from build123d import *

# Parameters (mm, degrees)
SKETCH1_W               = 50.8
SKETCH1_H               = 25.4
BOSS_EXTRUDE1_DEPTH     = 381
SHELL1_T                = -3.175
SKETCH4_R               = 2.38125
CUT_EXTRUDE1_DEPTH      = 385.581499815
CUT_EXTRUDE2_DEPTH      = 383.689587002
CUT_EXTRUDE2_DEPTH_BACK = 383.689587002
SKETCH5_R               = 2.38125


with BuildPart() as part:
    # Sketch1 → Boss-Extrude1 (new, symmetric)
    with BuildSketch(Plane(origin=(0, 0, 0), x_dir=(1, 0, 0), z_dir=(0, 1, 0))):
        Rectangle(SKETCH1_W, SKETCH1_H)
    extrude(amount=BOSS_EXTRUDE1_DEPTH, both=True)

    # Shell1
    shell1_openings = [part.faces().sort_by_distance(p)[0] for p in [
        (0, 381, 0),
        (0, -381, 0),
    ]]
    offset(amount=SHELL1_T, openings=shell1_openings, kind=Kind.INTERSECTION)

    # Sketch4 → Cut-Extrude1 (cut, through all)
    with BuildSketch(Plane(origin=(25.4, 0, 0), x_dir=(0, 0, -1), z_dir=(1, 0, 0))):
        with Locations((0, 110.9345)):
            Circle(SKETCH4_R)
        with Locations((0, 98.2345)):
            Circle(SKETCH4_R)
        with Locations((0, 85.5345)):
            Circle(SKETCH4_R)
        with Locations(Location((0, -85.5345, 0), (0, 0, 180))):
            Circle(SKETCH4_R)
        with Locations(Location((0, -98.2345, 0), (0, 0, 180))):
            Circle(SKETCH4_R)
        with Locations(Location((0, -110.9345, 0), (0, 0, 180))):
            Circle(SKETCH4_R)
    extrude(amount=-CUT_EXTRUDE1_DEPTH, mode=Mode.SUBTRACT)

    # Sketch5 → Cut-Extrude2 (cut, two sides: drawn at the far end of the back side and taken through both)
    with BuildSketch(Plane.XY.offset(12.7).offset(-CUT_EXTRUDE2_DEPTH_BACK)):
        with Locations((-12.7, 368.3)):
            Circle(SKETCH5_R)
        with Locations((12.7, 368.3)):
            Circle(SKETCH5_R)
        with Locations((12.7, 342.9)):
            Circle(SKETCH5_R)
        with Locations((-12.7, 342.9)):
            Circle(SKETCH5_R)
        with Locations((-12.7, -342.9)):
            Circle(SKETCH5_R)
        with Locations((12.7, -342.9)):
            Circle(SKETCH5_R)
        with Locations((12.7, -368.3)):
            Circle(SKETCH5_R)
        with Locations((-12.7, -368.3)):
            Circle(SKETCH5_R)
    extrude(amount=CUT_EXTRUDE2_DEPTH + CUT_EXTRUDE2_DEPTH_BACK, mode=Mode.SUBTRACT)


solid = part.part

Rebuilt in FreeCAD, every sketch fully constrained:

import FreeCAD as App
import Part
import Sketcher
Q = App.Units.Quantity


def faces_at(feature, points):
    """Names of the faces that lie closest to the given points."""
    faces = feature.Shape.Faces
    near = lambda p: min(range(len(faces)), key=lambda i: faces[i].distToShape(Part.Vertex(*p))[0])
    return sorted({f"Face{near(p) + 1}" for p in points})


def add_polygon(sketch, points):
    """Adds a closed chain of lines whose ends are joined by coincident constraints."""
    first, n = sketch.GeometryCount, len(points)
    for a, b in zip(points, points[1:] + points[:1]):
        sketch.addGeometry(Part.LineSegment(App.Vector(*a, 0), App.Vector(*b, 0)), False)
    for i in range(n):
        sketch.addConstraint(Sketcher.Constraint("Coincident", first + i, 2, first + (i + 1) % n, 1))

doc = App.newDocument("Part")
body = doc.addObject("PartDesign::Body", "Body")

sketch1 = body.newObject("Sketcher::SketchObject", "Sketch")
sketch1.AttachmentSupport = (doc.getObject("XZ_Plane"), [""])
sketch1.MapMode = "FlatFace"
add_polygon(sketch1, [(-25.4, -12.7), (-25.4, 12.7), (25.4, 12.7), (25.4, -12.7)])
sketch1.addConstraint([
    Sketcher.Constraint("Vertical", 0),
    Sketcher.Constraint("Horizontal", 1),
    Sketcher.Constraint("Vertical", 2),
    Sketcher.Constraint("Horizontal", 3),
    Sketcher.Constraint("Symmetric", 0, 2, 2, 2, -1, 1),
    Sketcher.Constraint("DistanceX", 1, 1, 1, 2, Q("2 in")),
    Sketcher.Constraint("DistanceY", 0, 1, 0, 2, Q("1 in")),
])
pad1 = body.newObject("PartDesign::Pad", "Pad")
pad1.Profile = sketch1
pad1.Length = Q("30 in")
pad1.Midplane = True
doc.recompute()

thickness = body.newObject("PartDesign::Thickness", "Thickness")
thickness.Base = (pad1, faces_at(pad1, [(0, 381, 0), (0, -381, 0)]))
thickness.Value = Q("0.125 in")
thickness.Reversed = True
thickness.Join = "Intersection"

sketch2 = body.newObject("Sketcher::SketchObject", "Sketch001")
sketch2.AttachmentSupport = (doc.getObject("YZ_Plane"), [""])
sketch2.MapMode = "FlatFace"
sketch2.AttachmentOffset = App.Placement(App.Vector(0, 0, 1 * 25.4), App.Rotation())
sketch2.addGeometry([
    Part.Circle(App.Vector(110.9345, 0, 0), App.Vector(0, 0, 1), 2.38125),
    Part.Circle(App.Vector(98.2345, 0, 0), App.Vector(0, 0, 1), 2.38125),
    Part.Circle(App.Vector(85.5345, 0, 0), App.Vector(0, 0, 1), 2.38125),
    Part.Circle(App.Vector(-85.5345, 0, 0), App.Vector(0, 0, 1), 2.38125),
    Part.Circle(App.Vector(-98.2345, 0, 0), App.Vector(0, 0, 1), 2.38125),
    Part.Circle(App.Vector(-110.9345, 0, 0), App.Vector(0, 0, 1), 2.38125),
], False)
sketch2.addConstraint([
    Sketcher.Constraint("Equal", 0, 1),
    Sketcher.Constraint("Equal", 1, 2),
    Sketcher.Constraint("Equal", 2, 3),
    Sketcher.Constraint("Equal", 3, 4),
    Sketcher.Constraint("Equal", 4, 5),
    Sketcher.Constraint("Symmetric", 2, 3, 3, 3, -1, 1),
    Sketcher.Constraint("Symmetric", 1, 3, 4, 3, -1, 1),
    Sketcher.Constraint("Symmetric", 0, 3, 5, 3, -1, 1),
    Sketcher.Constraint("PointOnObject", 0, 3, -1),
    Sketcher.Constraint("PointOnObject", 1, 3, -1),
    Sketcher.Constraint("PointOnObject", 2, 3, -1),
    Sketcher.Constraint("Diameter", 0, Q("0.1875 in")),
    Sketcher.Constraint("DistanceX", 2, 3, 0, 3, Q("1 in")),
    Sketcher.Constraint("DistanceX", 1, 3, 0, 3, Q("0.5 in")),
    Sketcher.Constraint("DistanceX", 3, 3, 2, 3, Q("6.735 in")),
])
pocket1 = body.newObject("PartDesign::Pocket", "Pocket")
pocket1.Profile = sketch2
pocket1.Type = "ThroughAll"

sketch3 = body.newObject("Sketcher::SketchObject", "Sketch002")
sketch3.AttachmentSupport = (doc.getObject("XY_Plane"), [""])
sketch3.MapMode = "FlatFace"
sketch3.AttachmentOffset = App.Placement(App.Vector(0, 0, 0.5 * 25.4), App.Rotation())
sketch3.addGeometry([
    Part.Circle(App.Vector(-12.7, 368.3, 0), App.Vector(0, 0, 1), 2.38125),
    Part.Circle(App.Vector(12.7, 368.3, 0), App.Vector(0, 0, 1), 2.38125),
    Part.Circle(App.Vector(12.7, 342.9, 0), App.Vector(0, 0, 1), 2.38125),
    Part.Circle(App.Vector(-12.7, 342.9, 0), App.Vector(0, 0, 1), 2.38125),
    Part.Circle(App.Vector(-12.7, -342.9, 0), App.Vector(0, 0, 1), 2.38125),
    Part.Circle(App.Vector(12.7, -342.9, 0), App.Vector(0, 0, 1), 2.38125),
    Part.Circle(App.Vector(12.7, -368.3, 0), App.Vector(0, 0, 1), 2.38125),
    Part.Circle(App.Vector(-12.7, -368.3, 0), App.Vector(0, 0, 1), 2.38125),
], False)
sketch3.addConstraint([
    Sketcher.Constraint("Equal", 0, 1),
    Sketcher.Constraint("Equal", 1, 2),
    Sketcher.Constraint("Equal", 2, 3),
    Sketcher.Constraint("Equal", 3, 4),
    Sketcher.Constraint("Equal", 4, 5),
    Sketcher.Constraint("Equal", 5, 6),
    Sketcher.Constraint("Equal", 6, 7),
    Sketcher.Constraint("Symmetric", 2, 3, 4, 3, -1, 1),
    Sketcher.Constraint("Symmetric", 3, 3, 5, 3, -1, 1),
    Sketcher.Constraint("Symmetric", 0, 3, 6, 3, -1, 1),
    Sketcher.Constraint("Symmetric", 1, 3, 7, 3, -1, 1),
    Sketcher.Constraint("Symmetric", 0, 3, 1, 3, -2),
    Sketcher.Constraint("Symmetric", 2, 3, 3, 3, -2),
    Sketcher.Constraint("Vertical", 1, 3, 2, 3),
    Sketcher.Constraint("Diameter", 0, Q("0.1875 in")),
    Sketcher.Constraint("DistanceX", 0, 3, 1, 3, Q("1 in")),
    Sketcher.Constraint("DistanceY", 2, 3, 1, 3, Q("1 in")),
    Sketcher.Constraint("DistanceY", 4, 3, 3, 3, Q("27 in")),
])
pocket2 = body.newObject("PartDesign::Pocket", "Pocket001")
pocket2.Profile = sketch3
pocket2.Type = "ThroughAll"
pocket2.Midplane = True

doc.recompute()
